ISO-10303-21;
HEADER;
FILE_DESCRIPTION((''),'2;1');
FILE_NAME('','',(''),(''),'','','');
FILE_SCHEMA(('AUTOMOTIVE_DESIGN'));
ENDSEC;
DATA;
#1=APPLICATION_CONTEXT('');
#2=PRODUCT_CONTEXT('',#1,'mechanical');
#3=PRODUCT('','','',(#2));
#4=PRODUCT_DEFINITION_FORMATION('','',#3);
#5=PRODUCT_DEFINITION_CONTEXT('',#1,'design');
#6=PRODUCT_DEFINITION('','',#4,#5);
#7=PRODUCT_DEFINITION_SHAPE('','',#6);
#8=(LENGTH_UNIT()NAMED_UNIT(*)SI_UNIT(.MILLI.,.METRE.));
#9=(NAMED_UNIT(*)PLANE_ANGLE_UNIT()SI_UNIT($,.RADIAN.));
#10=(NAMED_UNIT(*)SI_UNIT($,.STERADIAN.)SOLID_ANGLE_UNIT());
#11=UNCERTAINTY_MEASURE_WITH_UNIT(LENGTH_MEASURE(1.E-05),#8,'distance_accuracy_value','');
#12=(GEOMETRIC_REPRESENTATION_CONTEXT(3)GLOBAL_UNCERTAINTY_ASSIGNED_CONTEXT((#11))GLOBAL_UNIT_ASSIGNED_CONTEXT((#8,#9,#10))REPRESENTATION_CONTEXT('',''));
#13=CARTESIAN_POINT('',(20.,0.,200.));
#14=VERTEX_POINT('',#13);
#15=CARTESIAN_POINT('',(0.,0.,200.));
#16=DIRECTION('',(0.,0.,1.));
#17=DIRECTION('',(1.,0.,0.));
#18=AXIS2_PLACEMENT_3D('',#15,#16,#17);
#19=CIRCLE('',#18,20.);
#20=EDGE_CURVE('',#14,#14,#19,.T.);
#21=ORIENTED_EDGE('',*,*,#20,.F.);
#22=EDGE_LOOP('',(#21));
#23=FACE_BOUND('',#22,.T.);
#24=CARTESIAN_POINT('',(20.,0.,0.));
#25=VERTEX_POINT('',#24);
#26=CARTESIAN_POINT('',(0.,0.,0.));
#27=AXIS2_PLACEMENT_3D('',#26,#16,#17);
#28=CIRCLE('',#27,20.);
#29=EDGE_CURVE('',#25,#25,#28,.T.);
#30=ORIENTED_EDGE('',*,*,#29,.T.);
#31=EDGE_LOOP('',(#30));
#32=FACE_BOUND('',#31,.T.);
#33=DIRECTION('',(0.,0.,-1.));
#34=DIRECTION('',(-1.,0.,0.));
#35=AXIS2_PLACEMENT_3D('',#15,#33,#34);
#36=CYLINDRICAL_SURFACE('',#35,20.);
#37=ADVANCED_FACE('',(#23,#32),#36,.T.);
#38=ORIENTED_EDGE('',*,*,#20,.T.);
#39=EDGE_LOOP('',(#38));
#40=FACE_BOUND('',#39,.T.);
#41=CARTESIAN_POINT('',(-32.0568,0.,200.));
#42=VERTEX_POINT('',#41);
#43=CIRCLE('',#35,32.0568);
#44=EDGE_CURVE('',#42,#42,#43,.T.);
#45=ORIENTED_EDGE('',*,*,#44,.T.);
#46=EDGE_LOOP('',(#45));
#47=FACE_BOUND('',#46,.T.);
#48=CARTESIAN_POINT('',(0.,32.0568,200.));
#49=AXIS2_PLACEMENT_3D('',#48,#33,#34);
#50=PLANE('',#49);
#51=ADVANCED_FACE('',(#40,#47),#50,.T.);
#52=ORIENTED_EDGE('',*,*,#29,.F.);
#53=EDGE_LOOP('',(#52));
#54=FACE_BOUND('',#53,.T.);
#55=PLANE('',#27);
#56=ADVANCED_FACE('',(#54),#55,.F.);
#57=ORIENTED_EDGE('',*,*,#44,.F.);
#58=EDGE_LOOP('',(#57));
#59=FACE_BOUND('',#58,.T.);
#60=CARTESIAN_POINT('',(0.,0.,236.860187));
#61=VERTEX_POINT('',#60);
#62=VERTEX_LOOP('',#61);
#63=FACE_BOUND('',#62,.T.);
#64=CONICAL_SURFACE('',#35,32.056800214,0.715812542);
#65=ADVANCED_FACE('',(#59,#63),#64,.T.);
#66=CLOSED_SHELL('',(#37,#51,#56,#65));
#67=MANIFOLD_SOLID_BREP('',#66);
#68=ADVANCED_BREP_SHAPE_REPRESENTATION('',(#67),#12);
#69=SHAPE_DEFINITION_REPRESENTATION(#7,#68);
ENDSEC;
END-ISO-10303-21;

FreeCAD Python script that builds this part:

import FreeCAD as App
import Part
import Sketcher


def add_polygon(sketch, points):
    """Adds a closed chain of lines whose ends are joined by coincident constraints."""
    first, n = sketch.GeometryCount, len(points)
    for a, b in zip(points, points[1:] + points[:1]):
        sketch.addGeometry(Part.LineSegment(App.Vector(*a, 0), App.Vector(*b, 0)), False)
    for i in range(n):
        sketch.addConstraint(Sketcher.Constraint("Coincident", first + i, 2, first + (i + 1) % n, 1))

doc = App.newDocument("Part")
body = doc.addObject("PartDesign::Body", "Body")

# Sketch on XY plane
sketch1 = body.newObject("Sketcher::SketchObject", "Sketch")
sketch1.AttachmentSupport = (doc.getObject("XY_Plane"), [""])
sketch1.MapMode = "FlatFace"
sketch1.addGeometry(Part.Circle(App.Vector(0, 0, 0), App.Vector(0, 0, 1), 20), False)
sketch1.addConstraint([
    Sketcher.Constraint("Coincident", 0, 3, -1, 1),
    Sketcher.Constraint("Diameter", 0, 40.0),
])
pad1 = body.newObject("PartDesign::Pad", "Pad")
pad1.Profile = sketch1
pad1.Length = 200

# Sketch on YZ plane
sketch2 = body.newObject("Sketcher::SketchObject", "Sketch001")
sketch2.AttachmentSupport = (doc.getObject("YZ_Plane"), [""])
sketch2.MapMode = "FlatFace"
add_polygon(sketch2, [(0, 200), (32, 200), (0, 237)])  # lines 0-2
sketch2.addConstraint([
    Sketcher.Constraint("Horizontal", 0),
    Sketcher.Constraint("Vertical", 2),
    Sketcher.Constraint("PointOnObject", 1, 2, -2),
    Sketcher.Constraint("DistanceY", -1, 1, 0, 2, 200.0),
    Sketcher.Constraint("DistanceX", 0, 1, 0, 2, 32.0568),
    Sketcher.Constraint("Distance", 1, 48.849891),
])
revolution = body.newObject("PartDesign::Revolution", "Revolution")
revolution.Profile = sketch2
revolution.ReferenceAxis = (sketch2, ["V_Axis"])
revolution.Angle = 360

doc.recompute()
